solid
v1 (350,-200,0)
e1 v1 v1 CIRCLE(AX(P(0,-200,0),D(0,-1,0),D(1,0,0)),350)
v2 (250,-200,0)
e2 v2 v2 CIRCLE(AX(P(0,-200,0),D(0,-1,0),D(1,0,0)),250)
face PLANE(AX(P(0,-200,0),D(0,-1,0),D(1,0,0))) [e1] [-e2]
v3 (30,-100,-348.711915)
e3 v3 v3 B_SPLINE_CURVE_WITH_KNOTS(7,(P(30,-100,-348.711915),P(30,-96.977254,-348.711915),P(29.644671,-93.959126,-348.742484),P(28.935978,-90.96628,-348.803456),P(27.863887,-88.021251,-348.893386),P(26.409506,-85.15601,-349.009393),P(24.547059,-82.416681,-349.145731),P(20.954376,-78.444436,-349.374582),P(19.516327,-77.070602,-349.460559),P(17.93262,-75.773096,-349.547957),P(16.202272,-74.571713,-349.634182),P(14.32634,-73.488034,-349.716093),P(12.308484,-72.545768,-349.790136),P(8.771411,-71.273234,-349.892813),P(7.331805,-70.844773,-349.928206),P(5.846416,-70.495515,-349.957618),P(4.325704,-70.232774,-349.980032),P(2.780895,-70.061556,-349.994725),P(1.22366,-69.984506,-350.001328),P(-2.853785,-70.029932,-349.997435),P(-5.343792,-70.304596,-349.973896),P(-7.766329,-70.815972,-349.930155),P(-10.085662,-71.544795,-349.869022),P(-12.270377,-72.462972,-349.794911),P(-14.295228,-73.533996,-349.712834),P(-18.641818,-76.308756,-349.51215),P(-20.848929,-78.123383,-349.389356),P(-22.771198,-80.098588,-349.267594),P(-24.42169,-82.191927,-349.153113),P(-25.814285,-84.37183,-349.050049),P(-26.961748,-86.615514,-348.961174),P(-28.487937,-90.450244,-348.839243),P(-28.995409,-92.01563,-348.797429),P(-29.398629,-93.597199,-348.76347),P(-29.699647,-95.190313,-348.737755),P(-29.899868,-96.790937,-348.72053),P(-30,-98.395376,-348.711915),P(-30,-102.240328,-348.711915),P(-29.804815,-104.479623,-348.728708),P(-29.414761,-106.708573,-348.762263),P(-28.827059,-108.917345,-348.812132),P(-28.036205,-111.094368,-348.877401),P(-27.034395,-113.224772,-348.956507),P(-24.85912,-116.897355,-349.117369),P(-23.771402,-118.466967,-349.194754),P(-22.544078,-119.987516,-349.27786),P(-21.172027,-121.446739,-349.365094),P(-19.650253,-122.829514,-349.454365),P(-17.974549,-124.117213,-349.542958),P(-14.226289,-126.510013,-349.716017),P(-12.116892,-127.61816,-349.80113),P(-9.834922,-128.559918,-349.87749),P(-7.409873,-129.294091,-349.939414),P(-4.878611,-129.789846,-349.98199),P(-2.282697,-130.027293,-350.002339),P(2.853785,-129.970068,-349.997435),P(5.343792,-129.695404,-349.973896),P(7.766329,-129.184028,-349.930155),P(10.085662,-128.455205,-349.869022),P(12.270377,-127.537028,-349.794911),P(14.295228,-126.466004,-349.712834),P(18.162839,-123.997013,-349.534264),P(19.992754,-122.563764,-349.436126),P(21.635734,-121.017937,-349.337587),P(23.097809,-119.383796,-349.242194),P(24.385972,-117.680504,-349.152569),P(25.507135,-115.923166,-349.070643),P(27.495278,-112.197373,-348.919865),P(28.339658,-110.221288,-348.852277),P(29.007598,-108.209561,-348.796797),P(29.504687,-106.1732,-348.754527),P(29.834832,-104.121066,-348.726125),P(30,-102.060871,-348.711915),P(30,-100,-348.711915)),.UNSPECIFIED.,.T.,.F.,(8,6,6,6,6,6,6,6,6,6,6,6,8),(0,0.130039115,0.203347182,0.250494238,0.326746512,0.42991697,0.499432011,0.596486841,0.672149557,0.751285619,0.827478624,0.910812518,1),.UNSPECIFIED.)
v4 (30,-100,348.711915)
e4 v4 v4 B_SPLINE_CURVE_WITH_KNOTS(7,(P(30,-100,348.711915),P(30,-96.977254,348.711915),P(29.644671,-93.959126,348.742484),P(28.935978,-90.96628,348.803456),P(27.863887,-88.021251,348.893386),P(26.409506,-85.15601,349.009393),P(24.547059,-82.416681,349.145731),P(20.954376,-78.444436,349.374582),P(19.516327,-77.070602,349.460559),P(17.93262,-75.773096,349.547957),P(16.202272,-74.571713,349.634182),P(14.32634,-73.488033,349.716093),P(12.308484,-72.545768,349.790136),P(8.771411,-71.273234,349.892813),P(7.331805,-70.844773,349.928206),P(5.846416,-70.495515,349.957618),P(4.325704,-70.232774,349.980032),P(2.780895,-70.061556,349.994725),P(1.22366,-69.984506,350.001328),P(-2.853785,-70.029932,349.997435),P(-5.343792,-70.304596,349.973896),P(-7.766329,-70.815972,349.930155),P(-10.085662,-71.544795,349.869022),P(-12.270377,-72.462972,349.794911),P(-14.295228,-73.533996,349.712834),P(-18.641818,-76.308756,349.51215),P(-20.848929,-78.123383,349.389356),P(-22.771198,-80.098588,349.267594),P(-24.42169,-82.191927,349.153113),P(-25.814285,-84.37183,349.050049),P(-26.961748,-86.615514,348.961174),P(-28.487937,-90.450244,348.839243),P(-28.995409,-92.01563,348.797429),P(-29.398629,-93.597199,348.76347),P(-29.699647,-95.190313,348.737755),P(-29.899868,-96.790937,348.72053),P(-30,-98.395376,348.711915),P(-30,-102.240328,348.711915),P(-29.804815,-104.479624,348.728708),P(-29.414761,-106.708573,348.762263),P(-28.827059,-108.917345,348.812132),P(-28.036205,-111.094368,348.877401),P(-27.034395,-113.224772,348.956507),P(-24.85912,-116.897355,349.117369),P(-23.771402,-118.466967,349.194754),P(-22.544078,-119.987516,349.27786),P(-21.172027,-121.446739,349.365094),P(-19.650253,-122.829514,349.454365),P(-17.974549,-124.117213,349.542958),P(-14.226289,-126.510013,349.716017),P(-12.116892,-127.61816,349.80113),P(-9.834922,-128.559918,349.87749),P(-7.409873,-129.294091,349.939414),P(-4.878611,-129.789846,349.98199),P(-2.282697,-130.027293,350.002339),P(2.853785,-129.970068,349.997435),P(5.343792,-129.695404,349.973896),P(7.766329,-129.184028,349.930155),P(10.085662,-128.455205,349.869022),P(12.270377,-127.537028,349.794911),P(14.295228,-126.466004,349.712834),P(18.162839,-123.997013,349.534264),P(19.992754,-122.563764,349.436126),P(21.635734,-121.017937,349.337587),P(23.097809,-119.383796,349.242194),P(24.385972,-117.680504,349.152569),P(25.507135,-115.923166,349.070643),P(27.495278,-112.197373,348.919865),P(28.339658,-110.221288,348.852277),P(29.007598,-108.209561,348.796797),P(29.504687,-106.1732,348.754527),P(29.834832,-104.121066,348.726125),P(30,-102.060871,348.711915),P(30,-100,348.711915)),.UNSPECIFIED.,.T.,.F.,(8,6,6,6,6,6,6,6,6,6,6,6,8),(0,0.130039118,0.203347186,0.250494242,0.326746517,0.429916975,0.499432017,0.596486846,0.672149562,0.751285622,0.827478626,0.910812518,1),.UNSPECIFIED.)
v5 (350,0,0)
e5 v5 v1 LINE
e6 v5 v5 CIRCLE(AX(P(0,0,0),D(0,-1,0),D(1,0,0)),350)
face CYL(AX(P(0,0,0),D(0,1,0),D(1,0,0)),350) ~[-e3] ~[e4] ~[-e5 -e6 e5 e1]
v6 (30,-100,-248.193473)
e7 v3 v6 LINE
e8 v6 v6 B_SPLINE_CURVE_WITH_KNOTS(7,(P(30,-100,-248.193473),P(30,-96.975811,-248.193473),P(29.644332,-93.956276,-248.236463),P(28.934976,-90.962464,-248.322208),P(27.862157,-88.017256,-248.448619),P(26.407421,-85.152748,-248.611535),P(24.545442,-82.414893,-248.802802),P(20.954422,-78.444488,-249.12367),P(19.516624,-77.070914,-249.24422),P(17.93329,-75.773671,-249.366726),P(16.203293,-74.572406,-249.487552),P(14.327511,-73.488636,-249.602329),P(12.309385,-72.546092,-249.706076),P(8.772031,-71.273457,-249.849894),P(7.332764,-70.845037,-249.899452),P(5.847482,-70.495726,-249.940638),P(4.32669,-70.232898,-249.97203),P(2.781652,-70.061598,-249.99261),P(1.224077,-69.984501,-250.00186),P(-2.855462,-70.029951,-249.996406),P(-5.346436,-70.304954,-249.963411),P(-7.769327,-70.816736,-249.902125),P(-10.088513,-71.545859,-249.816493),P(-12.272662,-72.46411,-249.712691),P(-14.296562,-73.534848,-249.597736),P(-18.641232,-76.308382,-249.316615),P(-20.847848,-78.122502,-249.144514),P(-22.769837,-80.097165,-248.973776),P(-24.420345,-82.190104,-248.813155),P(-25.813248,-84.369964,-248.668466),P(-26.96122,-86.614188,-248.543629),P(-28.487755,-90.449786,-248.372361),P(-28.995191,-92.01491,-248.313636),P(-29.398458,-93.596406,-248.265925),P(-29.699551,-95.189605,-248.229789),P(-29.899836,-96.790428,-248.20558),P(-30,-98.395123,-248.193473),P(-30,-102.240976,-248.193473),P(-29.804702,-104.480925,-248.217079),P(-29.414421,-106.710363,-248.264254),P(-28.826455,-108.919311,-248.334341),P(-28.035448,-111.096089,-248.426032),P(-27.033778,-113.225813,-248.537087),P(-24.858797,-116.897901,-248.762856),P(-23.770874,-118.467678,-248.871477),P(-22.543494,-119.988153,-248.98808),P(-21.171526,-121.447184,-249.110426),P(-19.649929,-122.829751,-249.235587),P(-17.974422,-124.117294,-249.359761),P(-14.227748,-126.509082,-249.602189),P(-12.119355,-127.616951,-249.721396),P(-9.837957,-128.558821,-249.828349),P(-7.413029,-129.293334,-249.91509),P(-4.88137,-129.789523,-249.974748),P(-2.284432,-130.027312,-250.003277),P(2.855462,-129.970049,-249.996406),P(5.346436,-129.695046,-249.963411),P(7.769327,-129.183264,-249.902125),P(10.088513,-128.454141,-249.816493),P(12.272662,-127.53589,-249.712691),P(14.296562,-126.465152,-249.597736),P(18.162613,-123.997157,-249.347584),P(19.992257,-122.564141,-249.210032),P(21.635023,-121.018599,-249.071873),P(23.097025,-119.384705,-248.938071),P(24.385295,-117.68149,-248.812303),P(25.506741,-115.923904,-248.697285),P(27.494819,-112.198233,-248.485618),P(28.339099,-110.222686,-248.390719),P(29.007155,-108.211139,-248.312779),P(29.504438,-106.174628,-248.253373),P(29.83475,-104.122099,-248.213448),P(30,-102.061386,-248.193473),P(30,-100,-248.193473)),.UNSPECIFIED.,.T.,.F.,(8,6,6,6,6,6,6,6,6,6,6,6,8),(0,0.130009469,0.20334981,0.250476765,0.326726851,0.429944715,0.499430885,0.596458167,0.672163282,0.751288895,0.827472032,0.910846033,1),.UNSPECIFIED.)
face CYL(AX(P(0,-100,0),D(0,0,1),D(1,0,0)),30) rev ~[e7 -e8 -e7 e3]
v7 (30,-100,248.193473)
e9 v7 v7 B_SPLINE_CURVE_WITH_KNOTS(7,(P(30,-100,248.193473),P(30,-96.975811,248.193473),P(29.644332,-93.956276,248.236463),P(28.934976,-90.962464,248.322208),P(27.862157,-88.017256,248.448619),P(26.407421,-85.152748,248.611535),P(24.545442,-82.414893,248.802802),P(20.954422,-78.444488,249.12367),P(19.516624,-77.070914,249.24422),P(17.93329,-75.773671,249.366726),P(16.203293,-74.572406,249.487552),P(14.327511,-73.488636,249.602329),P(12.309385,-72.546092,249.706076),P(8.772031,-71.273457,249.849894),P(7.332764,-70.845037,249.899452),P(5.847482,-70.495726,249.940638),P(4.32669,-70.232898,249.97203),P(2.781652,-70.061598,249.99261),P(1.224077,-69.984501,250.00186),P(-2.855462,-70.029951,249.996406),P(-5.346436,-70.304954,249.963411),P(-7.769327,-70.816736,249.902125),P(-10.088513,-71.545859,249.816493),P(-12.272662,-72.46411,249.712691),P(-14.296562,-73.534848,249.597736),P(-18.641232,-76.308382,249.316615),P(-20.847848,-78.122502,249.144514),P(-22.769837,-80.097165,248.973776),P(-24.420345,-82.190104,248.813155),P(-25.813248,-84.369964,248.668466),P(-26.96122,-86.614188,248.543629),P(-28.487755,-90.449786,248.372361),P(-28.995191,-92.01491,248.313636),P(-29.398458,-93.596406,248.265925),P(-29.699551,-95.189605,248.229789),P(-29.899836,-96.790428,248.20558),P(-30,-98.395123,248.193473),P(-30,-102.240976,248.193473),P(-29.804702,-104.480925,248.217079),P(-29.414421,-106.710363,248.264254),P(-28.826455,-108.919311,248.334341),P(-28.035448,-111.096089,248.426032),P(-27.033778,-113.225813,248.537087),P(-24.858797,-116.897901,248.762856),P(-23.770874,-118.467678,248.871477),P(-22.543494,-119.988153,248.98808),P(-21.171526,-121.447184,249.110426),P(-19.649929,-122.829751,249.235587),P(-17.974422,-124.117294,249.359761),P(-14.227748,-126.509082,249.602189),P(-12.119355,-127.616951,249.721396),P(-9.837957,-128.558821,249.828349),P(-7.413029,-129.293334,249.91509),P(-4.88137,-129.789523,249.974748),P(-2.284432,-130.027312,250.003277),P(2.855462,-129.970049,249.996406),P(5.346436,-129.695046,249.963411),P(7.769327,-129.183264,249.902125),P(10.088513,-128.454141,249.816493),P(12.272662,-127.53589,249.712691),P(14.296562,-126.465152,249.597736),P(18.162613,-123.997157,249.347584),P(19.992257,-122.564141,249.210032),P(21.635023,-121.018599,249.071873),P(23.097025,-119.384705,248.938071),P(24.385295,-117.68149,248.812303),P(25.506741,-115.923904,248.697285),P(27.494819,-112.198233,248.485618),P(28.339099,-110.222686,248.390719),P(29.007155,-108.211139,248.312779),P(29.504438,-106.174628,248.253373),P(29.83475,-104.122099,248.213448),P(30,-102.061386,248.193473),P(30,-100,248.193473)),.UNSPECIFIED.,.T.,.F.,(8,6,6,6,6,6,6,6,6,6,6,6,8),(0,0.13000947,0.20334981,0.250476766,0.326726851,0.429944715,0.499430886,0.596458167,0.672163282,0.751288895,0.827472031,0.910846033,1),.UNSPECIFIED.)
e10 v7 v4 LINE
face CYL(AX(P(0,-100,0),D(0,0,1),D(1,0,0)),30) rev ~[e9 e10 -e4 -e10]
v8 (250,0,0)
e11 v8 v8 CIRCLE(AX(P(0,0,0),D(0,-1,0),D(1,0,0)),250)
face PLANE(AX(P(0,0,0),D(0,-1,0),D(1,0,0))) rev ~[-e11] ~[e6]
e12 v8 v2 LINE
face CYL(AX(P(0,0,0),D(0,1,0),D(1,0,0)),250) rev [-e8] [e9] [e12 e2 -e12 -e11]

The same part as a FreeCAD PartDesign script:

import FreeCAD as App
import Part
import Sketcher
from FreeCAD import Vector
Q = App.Units.Quantity

doc = App.newDocument("Part")
params = doc.addObject("Spreadsheet::Sheet", "Params")
for row, (alias, value) in enumerate([
    ("sketch1_diameter", "700 mm"),
    ("sketch1_diameter2", "500 mm"),
    ("pad1_length", "200 mm"),
    ("sketch2_diameter", "60 mm"),
    ("pocket1_length", "1000 mm"),
], start=1):
    params.set(f"A{row}", alias)
    params.set(f"B{row}", "=" + value)
    params.setAlias(f"B{row}", alias)

body = doc.addObject("PartDesign::Body", "Body")

# Sketch on XZ plane
sketch1 = doc.addObject("Sketcher::SketchObject", "Sketch")
body.addObject(sketch1)
sketch1.AttachmentSupport = (doc.XZ_Plane, [""])
sketch1.MapMode = "FlatFace"
sketch1.addGeometry(Part.Circle(Vector(0, 0, 0), Vector(0, 0, 1), 350), False)
sketch1.addGeometry(Part.Circle(Vector(0, 0, 0), Vector(0, 0, 1), 250), False)
sketch1.addConstraint(Sketcher.Constraint("Coincident", 0, 3, -1, 1))
sketch1.addConstraint(Sketcher.Constraint("Coincident", 1, 3, -1, 1))
sketch1.addConstraint(Sketcher.Constraint("Diameter", 0, Q("700 mm")))
sketch1.addConstraint(Sketcher.Constraint("Diameter", 1, Q("500 mm")))
sketch1.setExpression("Constraints[2]", "Params.sketch1_diameter")
sketch1.setExpression("Constraints[3]", "Params.sketch1_diameter2")
pad1 = doc.addObject("PartDesign::Pad", "Pad")
body.addObject(pad1)
pad1.Profile = sketch1
pad1.setExpression("Length", "Params.pad1_length")

# Sketch on XY plane
sketch2 = doc.addObject("Sketcher::SketchObject", "Sketch001")
body.addObject(sketch2)
sketch2.AttachmentSupport = (doc.XY_Plane, [""])
sketch2.MapMode = "FlatFace"
sketch2.addGeometry(Part.Circle(Vector(0, -100, 0), Vector(0, 0, 1), 30), False)
sketch2.addConstraint(Sketcher.Constraint("PointOnObject", 0, 3, -2))
sketch2.addConstraint(Sketcher.Constraint("Diameter", 0, Q("60 mm")))
sketch2.addConstraint(Sketcher.Constraint("DistanceY", 0, 3, -1, 1, Q("100 mm")))
sketch2.setExpression("Constraints[1]", "Params.sketch2_diameter")
pocket1 = doc.addObject("PartDesign::Pocket", "Pocket")
body.addObject(pocket1)
pocket1.Profile = sketch2
pocket1.setExpression("Length", "Params.pocket1_length")
pocket1.Midplane = True

doc.recompute()
